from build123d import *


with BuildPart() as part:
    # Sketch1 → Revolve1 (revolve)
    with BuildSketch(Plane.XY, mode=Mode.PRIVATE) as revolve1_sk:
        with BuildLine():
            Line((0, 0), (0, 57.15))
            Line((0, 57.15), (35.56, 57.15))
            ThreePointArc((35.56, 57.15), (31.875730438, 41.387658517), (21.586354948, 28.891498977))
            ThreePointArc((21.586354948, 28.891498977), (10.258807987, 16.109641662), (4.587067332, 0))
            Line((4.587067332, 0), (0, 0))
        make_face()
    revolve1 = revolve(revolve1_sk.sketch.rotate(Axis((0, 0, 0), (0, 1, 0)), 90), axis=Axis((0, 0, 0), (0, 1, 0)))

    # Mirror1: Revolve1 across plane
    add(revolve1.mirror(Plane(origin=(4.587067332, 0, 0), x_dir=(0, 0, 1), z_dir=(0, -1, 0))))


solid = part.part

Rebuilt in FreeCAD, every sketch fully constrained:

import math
import FreeCAD as App
import Part
import Sketcher
Q = App.Units.Quantity

doc = App.newDocument("Part")
body = doc.addObject("PartDesign::Body", "Body")

# Sketch on XY plane
sketch1 = doc.addObject("Sketcher::SketchObject", "Sketch")
body.addObject(sketch1)
sketch1.AttachmentSupport = (doc.XY_Plane, [""])
sketch1.MapMode = "FlatFace"
sketch1.addGeometry([
    Part.LineSegment(App.Vector(0, 57.1, 0), App.Vector(0, 0, 0)),  # 0
    Part.LineSegment(App.Vector(0, 0, 0), App.Vector(4.6, 0, 0)),  # 1
    Part.ArcOfCircle(Part.Circle(App.Vector(48.6, -6.4, 0), App.Vector(0, 0, 1), 44.4), math.radians(127), math.radians(172)),  # 2
    Part.ArcOfCircle(Part.Circle(App.Vector(0, 57.2, 0), App.Vector(0, 0, 1), 35.6), math.radians(-53), math.radians(0)),  # 3
    Part.LineSegment(App.Vector(35.6, 57.1, 0), App.Vector(0, 57.1, 0)),  # 4
], False)
sketch1.addConstraint([
    Sketcher.Constraint("Coincident", 0, 2, 1, 1),
    Sketcher.Constraint("Coincident", 1, 2, 2, 2),
    Sketcher.Constraint("Tangent", 2, 1, 3, 1),
    Sketcher.Constraint("Coincident", 3, 2, 4, 1),
    Sketcher.Constraint("Coincident", 4, 2, 0, 1),
    Sketcher.Constraint("Vertical", 0),
    Sketcher.Constraint("Horizontal", 1),
    Sketcher.Constraint("Horizontal", 4),
    Sketcher.Constraint("Coincident", 0, 2, -1, 1),
    Sketcher.Constraint("Coincident", 4, 2, 3, 3),
    Sketcher.Constraint("Radius", 3, Q("1.4 in")),
    Sketcher.Constraint("Radius", 2, Q("1.75 in")),
    Sketcher.Constraint("DistanceY", 0, 2, 0, 1, Q("2.25 in")),
    Sketcher.Constraint("DistanceX", -1, 1, 2, 3, Q("48.569299 mm")),
])
revolution = doc.addObject("PartDesign::Revolution", "Revolution")
body.addObject(revolution)
revolution.Profile = sketch1
revolution.ReferenceAxis = (sketch1, ["V_Axis"])
revolution.Angle = 360
doc.recompute()

mirrored = doc.addObject("PartDesign::Mirrored", "Mirrored")
body.addObject(mirrored)
mirrored.Originals = [revolution]
mirrored.MirrorPlane = (doc.XZ_Plane, [""])
body.Tip = mirrored

doc.recompute()
